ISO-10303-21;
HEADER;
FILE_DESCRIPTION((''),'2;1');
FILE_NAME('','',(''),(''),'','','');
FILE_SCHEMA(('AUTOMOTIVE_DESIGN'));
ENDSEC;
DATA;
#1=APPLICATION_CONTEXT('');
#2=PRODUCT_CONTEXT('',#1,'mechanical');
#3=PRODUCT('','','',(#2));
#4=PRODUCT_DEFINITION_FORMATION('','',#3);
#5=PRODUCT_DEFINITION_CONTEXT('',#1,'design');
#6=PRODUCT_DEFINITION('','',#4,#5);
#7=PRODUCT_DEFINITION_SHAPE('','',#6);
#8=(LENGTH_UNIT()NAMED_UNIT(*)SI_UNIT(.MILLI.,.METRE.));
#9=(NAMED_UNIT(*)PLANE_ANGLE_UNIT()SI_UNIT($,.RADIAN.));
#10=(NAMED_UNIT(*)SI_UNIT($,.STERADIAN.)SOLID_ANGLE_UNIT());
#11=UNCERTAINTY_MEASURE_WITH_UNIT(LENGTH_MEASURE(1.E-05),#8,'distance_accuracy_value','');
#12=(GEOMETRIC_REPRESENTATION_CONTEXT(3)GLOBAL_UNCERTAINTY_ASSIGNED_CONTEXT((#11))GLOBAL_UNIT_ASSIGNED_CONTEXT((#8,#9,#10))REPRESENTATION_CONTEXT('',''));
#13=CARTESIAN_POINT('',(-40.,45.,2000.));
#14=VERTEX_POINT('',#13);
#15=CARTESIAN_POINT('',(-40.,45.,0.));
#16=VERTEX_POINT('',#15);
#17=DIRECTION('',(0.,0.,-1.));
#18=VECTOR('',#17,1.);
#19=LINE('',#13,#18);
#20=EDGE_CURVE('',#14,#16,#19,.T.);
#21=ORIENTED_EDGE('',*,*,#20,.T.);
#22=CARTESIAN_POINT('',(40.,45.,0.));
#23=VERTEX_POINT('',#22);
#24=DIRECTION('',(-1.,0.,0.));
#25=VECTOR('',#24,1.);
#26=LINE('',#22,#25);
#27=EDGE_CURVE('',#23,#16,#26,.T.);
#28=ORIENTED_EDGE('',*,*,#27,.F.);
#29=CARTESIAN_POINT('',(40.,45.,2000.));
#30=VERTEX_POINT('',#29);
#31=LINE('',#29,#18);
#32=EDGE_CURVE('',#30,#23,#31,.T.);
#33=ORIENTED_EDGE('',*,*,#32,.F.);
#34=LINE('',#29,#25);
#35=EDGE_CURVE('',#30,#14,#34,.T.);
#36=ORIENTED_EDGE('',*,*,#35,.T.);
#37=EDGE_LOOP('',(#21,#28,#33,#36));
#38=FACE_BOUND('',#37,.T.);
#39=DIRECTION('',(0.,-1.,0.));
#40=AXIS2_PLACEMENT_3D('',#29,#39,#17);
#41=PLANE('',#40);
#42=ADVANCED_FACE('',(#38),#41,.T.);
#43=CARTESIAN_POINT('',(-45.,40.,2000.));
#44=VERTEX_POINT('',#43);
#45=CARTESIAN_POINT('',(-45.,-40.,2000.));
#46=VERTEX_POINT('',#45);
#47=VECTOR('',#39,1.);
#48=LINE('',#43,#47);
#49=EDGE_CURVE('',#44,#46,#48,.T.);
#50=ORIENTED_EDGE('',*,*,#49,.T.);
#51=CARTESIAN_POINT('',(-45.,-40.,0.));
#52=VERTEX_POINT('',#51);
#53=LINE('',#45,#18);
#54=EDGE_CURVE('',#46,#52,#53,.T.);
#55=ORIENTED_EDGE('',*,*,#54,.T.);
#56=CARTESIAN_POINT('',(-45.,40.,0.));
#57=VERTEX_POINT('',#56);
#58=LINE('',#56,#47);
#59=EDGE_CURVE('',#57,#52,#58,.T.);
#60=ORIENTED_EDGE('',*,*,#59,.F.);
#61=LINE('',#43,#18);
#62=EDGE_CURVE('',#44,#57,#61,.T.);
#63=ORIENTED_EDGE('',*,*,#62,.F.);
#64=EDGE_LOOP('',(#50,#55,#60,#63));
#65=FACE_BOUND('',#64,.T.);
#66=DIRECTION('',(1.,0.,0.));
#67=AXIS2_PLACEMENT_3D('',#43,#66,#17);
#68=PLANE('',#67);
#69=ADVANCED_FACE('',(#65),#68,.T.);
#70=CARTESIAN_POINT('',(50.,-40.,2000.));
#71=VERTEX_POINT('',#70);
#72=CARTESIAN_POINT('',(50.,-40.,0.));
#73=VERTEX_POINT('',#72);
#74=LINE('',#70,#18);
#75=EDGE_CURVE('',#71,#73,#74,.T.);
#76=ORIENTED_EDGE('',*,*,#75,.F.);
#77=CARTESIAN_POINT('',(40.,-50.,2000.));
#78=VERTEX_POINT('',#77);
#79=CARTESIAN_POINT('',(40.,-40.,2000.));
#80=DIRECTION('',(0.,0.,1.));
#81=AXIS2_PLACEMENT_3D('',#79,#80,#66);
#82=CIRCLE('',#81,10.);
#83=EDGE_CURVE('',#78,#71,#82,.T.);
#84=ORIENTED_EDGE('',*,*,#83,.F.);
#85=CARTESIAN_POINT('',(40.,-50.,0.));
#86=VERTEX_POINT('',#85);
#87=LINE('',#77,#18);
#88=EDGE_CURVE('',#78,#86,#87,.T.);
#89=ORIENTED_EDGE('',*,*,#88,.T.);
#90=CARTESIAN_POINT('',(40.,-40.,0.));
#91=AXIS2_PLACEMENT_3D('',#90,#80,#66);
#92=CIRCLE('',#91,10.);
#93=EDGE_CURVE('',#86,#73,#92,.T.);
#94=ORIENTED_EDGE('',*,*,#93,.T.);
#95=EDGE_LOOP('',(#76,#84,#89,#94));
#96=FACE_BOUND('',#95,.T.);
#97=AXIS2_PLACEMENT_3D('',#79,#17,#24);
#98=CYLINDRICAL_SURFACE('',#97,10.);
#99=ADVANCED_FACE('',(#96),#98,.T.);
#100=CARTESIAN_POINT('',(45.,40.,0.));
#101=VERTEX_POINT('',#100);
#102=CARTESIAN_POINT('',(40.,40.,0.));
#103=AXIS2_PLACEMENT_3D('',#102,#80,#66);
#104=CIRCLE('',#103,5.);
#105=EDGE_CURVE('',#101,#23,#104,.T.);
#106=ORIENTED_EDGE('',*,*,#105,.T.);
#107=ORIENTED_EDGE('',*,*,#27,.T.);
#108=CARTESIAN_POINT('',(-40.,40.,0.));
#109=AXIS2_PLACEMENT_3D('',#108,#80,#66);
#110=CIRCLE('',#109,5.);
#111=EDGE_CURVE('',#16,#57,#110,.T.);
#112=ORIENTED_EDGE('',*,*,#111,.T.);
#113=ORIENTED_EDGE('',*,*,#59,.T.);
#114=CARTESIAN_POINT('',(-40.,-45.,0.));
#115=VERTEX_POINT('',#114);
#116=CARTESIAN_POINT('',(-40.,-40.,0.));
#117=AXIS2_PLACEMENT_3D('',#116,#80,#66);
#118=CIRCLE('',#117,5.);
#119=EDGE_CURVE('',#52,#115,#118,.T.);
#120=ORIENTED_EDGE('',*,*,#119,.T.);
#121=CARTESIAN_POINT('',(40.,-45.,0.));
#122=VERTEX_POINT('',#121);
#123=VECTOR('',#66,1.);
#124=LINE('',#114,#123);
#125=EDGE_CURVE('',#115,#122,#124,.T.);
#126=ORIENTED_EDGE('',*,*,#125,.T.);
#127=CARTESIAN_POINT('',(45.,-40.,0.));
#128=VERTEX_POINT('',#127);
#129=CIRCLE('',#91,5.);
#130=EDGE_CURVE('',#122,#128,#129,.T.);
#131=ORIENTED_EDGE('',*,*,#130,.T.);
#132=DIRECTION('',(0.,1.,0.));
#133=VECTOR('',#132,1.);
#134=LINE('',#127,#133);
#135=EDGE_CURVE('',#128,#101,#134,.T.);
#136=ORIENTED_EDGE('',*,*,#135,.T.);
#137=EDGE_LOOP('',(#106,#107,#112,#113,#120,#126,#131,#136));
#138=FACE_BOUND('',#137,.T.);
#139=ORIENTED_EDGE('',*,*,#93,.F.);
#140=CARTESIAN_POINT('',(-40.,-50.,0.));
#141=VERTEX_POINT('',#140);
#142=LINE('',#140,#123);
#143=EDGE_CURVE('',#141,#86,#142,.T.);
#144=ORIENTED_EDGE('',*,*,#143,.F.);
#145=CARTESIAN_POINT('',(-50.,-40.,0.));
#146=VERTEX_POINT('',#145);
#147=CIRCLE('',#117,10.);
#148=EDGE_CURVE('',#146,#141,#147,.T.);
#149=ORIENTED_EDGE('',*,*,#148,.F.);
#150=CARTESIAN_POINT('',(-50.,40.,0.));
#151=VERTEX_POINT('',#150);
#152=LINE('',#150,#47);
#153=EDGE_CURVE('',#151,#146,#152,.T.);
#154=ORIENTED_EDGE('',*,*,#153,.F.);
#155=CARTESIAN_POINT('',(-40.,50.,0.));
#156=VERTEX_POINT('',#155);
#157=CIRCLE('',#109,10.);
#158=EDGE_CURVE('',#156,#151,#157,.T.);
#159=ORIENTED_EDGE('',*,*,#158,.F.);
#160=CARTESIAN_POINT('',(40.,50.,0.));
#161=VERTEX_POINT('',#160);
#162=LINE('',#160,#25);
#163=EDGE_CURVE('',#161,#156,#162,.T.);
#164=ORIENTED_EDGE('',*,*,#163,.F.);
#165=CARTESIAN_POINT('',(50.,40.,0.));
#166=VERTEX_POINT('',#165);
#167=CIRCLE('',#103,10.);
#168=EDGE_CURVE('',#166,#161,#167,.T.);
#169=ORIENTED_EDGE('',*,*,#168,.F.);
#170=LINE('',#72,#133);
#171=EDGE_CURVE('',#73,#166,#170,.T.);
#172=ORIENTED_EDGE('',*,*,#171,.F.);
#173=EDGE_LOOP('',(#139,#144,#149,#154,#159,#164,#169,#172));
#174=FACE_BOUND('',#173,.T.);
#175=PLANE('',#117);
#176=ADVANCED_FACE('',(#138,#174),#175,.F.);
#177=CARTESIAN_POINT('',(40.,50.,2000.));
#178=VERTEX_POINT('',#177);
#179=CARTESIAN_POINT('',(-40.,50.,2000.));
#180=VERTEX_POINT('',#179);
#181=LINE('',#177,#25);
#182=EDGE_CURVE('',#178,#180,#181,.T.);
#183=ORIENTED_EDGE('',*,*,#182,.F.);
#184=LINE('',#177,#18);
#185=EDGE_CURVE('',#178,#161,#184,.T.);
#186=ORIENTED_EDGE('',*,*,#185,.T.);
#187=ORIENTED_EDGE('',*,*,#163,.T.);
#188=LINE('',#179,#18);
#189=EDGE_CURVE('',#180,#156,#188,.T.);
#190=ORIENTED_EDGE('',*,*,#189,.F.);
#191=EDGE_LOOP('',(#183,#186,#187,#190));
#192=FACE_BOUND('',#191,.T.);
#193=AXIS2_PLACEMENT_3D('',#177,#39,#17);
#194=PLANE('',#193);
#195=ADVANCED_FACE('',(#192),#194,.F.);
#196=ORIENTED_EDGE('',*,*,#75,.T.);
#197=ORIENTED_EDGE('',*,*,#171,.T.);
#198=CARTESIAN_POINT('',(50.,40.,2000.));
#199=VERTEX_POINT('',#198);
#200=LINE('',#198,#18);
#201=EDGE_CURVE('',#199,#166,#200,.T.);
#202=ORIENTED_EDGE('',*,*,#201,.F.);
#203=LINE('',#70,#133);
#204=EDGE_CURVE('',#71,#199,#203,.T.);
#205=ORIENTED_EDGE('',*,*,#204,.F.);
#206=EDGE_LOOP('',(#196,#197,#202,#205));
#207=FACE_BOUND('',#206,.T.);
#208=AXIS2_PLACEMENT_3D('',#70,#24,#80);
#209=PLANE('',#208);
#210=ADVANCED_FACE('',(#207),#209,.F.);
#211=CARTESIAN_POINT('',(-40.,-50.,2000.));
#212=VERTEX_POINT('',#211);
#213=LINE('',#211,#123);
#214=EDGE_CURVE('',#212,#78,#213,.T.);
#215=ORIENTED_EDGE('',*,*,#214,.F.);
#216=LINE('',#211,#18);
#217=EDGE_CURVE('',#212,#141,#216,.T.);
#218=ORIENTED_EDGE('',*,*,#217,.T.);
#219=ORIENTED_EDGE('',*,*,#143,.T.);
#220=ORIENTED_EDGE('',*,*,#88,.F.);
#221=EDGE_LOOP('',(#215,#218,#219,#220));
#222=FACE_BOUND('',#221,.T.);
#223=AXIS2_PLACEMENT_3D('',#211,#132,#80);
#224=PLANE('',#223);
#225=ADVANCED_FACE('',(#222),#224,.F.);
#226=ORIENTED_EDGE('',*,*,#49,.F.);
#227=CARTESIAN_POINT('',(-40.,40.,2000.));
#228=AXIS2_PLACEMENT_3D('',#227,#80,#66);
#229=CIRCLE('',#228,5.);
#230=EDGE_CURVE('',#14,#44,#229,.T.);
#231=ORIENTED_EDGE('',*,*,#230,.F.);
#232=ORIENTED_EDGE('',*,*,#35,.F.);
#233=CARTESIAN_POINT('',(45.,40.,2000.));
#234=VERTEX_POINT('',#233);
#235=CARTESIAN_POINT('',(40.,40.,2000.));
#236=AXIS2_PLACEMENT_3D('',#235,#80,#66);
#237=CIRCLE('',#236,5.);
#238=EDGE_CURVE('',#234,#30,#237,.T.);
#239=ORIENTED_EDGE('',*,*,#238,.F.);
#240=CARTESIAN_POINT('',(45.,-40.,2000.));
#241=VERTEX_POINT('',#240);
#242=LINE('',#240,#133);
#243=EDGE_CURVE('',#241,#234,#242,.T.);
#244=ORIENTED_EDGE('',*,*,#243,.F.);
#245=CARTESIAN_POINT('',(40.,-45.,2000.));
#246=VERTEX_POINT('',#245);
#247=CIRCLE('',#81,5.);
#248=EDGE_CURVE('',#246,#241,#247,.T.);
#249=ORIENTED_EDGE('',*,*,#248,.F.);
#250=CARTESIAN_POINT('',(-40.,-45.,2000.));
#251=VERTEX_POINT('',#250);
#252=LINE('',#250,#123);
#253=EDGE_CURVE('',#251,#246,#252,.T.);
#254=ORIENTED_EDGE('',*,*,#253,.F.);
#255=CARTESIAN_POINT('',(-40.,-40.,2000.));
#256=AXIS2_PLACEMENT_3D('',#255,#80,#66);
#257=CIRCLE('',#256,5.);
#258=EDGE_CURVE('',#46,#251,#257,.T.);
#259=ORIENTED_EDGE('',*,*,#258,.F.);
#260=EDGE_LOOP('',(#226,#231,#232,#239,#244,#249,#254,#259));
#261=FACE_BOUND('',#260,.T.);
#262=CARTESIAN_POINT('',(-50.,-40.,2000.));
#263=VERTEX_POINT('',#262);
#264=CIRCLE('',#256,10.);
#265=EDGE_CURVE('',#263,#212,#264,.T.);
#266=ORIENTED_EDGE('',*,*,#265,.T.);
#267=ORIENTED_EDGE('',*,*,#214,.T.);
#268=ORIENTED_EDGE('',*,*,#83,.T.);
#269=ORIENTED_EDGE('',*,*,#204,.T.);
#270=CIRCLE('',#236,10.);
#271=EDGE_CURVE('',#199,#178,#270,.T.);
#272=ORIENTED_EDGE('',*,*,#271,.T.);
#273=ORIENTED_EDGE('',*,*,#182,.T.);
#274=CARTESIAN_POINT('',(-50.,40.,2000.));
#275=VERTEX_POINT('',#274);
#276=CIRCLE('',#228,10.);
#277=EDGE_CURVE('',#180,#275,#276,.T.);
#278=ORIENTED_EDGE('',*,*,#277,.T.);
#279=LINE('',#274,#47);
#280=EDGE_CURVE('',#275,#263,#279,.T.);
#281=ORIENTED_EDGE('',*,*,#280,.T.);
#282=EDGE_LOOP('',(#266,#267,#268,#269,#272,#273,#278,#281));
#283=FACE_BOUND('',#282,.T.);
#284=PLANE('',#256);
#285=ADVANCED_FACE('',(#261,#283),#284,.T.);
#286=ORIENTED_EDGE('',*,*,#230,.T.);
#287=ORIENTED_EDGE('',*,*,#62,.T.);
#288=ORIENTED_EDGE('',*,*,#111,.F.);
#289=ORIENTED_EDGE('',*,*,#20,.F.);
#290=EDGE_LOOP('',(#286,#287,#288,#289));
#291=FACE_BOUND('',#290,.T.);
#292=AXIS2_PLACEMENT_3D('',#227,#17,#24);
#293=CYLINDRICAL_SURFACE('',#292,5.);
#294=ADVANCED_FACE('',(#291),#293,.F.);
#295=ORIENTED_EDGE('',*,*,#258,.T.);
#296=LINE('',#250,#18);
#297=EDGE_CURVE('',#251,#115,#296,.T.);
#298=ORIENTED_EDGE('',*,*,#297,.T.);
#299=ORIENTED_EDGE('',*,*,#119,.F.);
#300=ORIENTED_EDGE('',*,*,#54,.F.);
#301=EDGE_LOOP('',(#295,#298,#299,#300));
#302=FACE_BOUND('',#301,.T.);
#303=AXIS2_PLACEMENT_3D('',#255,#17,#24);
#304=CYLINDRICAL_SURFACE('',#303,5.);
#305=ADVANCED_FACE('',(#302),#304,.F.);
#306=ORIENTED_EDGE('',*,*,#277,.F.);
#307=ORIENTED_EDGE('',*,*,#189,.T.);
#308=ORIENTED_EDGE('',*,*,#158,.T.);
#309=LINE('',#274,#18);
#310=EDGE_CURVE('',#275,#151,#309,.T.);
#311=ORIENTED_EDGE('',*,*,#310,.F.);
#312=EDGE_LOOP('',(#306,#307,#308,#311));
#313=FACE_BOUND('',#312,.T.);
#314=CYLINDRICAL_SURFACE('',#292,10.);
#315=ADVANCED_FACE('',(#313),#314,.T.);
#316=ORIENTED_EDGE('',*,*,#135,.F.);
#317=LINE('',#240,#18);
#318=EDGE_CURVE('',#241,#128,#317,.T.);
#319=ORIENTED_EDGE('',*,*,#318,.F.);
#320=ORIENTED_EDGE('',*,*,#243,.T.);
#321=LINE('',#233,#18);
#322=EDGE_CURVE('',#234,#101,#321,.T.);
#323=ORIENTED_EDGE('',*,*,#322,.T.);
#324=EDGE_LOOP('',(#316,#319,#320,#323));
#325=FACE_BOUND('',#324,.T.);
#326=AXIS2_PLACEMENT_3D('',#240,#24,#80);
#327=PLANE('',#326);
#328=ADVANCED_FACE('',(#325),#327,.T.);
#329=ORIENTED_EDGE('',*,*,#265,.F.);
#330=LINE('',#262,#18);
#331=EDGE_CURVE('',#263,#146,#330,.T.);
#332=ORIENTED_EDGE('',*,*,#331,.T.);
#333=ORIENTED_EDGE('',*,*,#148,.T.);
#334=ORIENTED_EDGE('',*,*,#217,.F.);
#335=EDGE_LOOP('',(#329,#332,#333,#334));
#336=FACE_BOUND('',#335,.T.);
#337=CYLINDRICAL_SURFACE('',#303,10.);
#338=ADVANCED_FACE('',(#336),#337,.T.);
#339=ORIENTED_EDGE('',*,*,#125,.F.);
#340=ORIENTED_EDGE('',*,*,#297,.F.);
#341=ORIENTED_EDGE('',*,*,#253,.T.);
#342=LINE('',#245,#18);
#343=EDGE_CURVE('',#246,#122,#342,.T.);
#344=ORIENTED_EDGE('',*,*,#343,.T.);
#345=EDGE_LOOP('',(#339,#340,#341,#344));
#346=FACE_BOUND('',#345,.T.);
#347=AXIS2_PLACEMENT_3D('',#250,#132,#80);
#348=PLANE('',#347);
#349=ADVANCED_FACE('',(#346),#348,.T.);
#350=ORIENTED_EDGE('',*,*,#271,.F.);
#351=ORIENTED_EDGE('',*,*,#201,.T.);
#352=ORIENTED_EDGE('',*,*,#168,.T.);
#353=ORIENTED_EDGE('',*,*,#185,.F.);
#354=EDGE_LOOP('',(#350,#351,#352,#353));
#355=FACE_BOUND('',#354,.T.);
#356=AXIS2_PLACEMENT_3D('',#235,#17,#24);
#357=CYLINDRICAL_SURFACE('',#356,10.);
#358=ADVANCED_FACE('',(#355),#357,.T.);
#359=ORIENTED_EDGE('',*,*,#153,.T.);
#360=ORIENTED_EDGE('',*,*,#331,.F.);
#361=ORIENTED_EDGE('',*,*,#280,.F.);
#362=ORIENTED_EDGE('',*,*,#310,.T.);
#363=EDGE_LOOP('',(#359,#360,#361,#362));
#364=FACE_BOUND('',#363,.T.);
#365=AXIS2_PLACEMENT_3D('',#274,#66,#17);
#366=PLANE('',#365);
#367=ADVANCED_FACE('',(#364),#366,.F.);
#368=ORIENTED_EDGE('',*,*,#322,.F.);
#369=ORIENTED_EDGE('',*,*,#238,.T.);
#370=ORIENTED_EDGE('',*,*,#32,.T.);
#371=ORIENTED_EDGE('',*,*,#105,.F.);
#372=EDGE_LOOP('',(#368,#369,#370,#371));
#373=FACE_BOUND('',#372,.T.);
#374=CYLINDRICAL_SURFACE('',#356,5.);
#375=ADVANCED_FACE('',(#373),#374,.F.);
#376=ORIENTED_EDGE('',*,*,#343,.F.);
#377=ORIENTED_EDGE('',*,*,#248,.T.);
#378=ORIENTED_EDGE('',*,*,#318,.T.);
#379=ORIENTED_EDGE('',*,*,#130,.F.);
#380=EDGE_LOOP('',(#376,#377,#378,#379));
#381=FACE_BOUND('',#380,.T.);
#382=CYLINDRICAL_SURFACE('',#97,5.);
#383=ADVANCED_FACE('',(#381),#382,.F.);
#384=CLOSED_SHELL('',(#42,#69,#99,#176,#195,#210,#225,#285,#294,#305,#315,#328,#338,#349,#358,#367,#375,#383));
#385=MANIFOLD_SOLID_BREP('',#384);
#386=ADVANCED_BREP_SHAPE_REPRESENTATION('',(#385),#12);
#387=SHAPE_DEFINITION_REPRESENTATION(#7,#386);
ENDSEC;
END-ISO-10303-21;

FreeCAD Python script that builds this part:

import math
import FreeCAD as App
import Part
import Sketcher

V = App.Vector

doc = App.newDocument("Part")
body = doc.addObject("PartDesign::Body", "Body")

# Sketch on XY plane
sketch1 = doc.addObject("Sketcher::SketchObject", "Sketch")
body.addObject(sketch1)
sketch1.AttachmentSupport = (doc.XY_Plane, [""])
sketch1.MapMode = "FlatFace"
sketch1.addGeometry(Part.LineSegment(V(-40, -50, 0), V(40, -50, 0)), False)
sketch1.addGeometry(Part.ArcOfCircle(Part.Circle(V(40, -40, 0), V(0, 0, 1), 10), math.radians(-90), math.radians(0)), False)
sketch1.addGeometry(Part.LineSegment(V(50, -40, 0), V(50, 40, 0)), False)
sketch1.addGeometry(Part.ArcOfCircle(Part.Circle(V(40, 40, 0), V(0, 0, 1), 10), math.radians(0), math.radians(90)), False)
sketch1.addGeometry(Part.LineSegment(V(40, 50, 0), V(-40, 50, 0)), False)
sketch1.addGeometry(Part.ArcOfCircle(Part.Circle(V(-40, 40, 0), V(0, 0, 1), 10), math.radians(90), math.radians(180)), False)
sketch1.addGeometry(Part.LineSegment(V(-50, 40, 0), V(-50, -40, 0)), False)
sketch1.addGeometry(Part.ArcOfCircle(Part.Circle(V(-40, -40, 0), V(0, 0, 1), 10), math.radians(180), math.radians(270)), False)
sketch1.addGeometry(Part.LineSegment(V(40, -45, 0), V(-40, -45, 0)), False)
sketch1.addGeometry(Part.ArcOfCircle(Part.Circle(V(-40, -40, 0), V(0, 0, 1), 5), math.radians(180), math.radians(270)), False)
sketch1.addGeometry(Part.LineSegment(V(-45, -40, 0), V(-45, 40, 0)), False)
sketch1.addGeometry(Part.ArcOfCircle(Part.Circle(V(-40, 40, 0), V(0, 0, 1), 5), math.radians(90), math.radians(180)), False)
sketch1.addGeometry(Part.LineSegment(V(-40, 45, 0), V(40, 45, 0)), False)
sketch1.addGeometry(Part.ArcOfCircle(Part.Circle(V(40, 40, 0), V(0, 0, 1), 5), math.radians(0), math.radians(90)), False)
sketch1.addGeometry(Part.LineSegment(V(45, 40, 0), V(45, -40, 0)), False)
sketch1.addGeometry(Part.ArcOfCircle(Part.Circle(V(40, -40, 0), V(0, 0, 1), 5), math.radians(-90), math.radians(0)), False)
sketch1.addConstraint(Sketcher.Constraint("Tangent", 0, 2, 1, 1))
sketch1.addConstraint(Sketcher.Constraint("Tangent", 1, 2, 2, 1))
sketch1.addConstraint(Sketcher.Constraint("Tangent", 2, 2, 3, 1))
sketch1.addConstraint(Sketcher.Constraint("Tangent", 3, 2, 4, 1))
sketch1.addConstraint(Sketcher.Constraint("Tangent", 4, 2, 5, 1))
sketch1.addConstraint(Sketcher.Constraint("Tangent", 5, 2, 6, 1))
sketch1.addConstraint(Sketcher.Constraint("Tangent", 6, 2, 7, 1))
sketch1.addConstraint(Sketcher.Constraint("Tangent", 7, 2, 0, 1))
sketch1.addConstraint(Sketcher.Constraint("Tangent", 8, 2, 9, 2))
sketch1.addConstraint(Sketcher.Constraint("Tangent", 9, 1, 10, 1))
sketch1.addConstraint(Sketcher.Constraint("Tangent", 10, 2, 11, 2))
sketch1.addConstraint(Sketcher.Constraint("Tangent", 11, 1, 12, 1))
sketch1.addConstraint(Sketcher.Constraint("Tangent", 12, 2, 13, 2))
sketch1.addConstraint(Sketcher.Constraint("Tangent", 13, 1, 14, 1))
sketch1.addConstraint(Sketcher.Constraint("Tangent", 14, 2, 15, 2))
sketch1.addConstraint(Sketcher.Constraint("Tangent", 15, 1, 8, 1))
sketch1.addConstraint(Sketcher.Constraint("Horizontal", 0))
sketch1.addConstraint(Sketcher.Constraint("Vertical", 2))
sketch1.addConstraint(Sketcher.Constraint("Horizontal", 4))
sketch1.addConstraint(Sketcher.Constraint("Vertical", 6))
sketch1.addConstraint(Sketcher.Constraint("Horizontal", 8))
sketch1.addConstraint(Sketcher.Constraint("Vertical", 10))
sketch1.addConstraint(Sketcher.Constraint("Horizontal", 12))
sketch1.addConstraint(Sketcher.Constraint("Vertical", 14))
sketch1.addConstraint(Sketcher.Constraint("Coincident", 9, 3, 7, 3))
sketch1.addConstraint(Sketcher.Constraint("Coincident", 11, 3, 5, 3))
sketch1.addConstraint(Sketcher.Constraint("Coincident", 13, 3, 3, 3))
sketch1.addConstraint(Sketcher.Constraint("Equal", 1, 3))
sketch1.addConstraint(Sketcher.Constraint("Equal", 3, 5))
sketch1.addConstraint(Sketcher.Constraint("Equal", 5, 7))
sketch1.addConstraint(Sketcher.Constraint("Equal", 13, 15))
sketch1.addConstraint(Sketcher.Constraint("Symmetric", 1, 3, 5, 3, -1, 1))
sketch1.addConstraint(Sketcher.Constraint("Equal", 12, 2))
sketch1.addConstraint(Sketcher.Constraint("Radius", 1, 10.0))
sketch1.addConstraint(Sketcher.Constraint("Radius", 9, 5.0))
sketch1.addConstraint(Sketcher.Constraint("DistanceX", 0, 1, 0, 2, 80.0))
pad1 = doc.addObject("PartDesign::Pad", "Pad")
body.addObject(pad1)
pad1.Profile = sketch1
pad1.Length = 2000

doc.recompute()
